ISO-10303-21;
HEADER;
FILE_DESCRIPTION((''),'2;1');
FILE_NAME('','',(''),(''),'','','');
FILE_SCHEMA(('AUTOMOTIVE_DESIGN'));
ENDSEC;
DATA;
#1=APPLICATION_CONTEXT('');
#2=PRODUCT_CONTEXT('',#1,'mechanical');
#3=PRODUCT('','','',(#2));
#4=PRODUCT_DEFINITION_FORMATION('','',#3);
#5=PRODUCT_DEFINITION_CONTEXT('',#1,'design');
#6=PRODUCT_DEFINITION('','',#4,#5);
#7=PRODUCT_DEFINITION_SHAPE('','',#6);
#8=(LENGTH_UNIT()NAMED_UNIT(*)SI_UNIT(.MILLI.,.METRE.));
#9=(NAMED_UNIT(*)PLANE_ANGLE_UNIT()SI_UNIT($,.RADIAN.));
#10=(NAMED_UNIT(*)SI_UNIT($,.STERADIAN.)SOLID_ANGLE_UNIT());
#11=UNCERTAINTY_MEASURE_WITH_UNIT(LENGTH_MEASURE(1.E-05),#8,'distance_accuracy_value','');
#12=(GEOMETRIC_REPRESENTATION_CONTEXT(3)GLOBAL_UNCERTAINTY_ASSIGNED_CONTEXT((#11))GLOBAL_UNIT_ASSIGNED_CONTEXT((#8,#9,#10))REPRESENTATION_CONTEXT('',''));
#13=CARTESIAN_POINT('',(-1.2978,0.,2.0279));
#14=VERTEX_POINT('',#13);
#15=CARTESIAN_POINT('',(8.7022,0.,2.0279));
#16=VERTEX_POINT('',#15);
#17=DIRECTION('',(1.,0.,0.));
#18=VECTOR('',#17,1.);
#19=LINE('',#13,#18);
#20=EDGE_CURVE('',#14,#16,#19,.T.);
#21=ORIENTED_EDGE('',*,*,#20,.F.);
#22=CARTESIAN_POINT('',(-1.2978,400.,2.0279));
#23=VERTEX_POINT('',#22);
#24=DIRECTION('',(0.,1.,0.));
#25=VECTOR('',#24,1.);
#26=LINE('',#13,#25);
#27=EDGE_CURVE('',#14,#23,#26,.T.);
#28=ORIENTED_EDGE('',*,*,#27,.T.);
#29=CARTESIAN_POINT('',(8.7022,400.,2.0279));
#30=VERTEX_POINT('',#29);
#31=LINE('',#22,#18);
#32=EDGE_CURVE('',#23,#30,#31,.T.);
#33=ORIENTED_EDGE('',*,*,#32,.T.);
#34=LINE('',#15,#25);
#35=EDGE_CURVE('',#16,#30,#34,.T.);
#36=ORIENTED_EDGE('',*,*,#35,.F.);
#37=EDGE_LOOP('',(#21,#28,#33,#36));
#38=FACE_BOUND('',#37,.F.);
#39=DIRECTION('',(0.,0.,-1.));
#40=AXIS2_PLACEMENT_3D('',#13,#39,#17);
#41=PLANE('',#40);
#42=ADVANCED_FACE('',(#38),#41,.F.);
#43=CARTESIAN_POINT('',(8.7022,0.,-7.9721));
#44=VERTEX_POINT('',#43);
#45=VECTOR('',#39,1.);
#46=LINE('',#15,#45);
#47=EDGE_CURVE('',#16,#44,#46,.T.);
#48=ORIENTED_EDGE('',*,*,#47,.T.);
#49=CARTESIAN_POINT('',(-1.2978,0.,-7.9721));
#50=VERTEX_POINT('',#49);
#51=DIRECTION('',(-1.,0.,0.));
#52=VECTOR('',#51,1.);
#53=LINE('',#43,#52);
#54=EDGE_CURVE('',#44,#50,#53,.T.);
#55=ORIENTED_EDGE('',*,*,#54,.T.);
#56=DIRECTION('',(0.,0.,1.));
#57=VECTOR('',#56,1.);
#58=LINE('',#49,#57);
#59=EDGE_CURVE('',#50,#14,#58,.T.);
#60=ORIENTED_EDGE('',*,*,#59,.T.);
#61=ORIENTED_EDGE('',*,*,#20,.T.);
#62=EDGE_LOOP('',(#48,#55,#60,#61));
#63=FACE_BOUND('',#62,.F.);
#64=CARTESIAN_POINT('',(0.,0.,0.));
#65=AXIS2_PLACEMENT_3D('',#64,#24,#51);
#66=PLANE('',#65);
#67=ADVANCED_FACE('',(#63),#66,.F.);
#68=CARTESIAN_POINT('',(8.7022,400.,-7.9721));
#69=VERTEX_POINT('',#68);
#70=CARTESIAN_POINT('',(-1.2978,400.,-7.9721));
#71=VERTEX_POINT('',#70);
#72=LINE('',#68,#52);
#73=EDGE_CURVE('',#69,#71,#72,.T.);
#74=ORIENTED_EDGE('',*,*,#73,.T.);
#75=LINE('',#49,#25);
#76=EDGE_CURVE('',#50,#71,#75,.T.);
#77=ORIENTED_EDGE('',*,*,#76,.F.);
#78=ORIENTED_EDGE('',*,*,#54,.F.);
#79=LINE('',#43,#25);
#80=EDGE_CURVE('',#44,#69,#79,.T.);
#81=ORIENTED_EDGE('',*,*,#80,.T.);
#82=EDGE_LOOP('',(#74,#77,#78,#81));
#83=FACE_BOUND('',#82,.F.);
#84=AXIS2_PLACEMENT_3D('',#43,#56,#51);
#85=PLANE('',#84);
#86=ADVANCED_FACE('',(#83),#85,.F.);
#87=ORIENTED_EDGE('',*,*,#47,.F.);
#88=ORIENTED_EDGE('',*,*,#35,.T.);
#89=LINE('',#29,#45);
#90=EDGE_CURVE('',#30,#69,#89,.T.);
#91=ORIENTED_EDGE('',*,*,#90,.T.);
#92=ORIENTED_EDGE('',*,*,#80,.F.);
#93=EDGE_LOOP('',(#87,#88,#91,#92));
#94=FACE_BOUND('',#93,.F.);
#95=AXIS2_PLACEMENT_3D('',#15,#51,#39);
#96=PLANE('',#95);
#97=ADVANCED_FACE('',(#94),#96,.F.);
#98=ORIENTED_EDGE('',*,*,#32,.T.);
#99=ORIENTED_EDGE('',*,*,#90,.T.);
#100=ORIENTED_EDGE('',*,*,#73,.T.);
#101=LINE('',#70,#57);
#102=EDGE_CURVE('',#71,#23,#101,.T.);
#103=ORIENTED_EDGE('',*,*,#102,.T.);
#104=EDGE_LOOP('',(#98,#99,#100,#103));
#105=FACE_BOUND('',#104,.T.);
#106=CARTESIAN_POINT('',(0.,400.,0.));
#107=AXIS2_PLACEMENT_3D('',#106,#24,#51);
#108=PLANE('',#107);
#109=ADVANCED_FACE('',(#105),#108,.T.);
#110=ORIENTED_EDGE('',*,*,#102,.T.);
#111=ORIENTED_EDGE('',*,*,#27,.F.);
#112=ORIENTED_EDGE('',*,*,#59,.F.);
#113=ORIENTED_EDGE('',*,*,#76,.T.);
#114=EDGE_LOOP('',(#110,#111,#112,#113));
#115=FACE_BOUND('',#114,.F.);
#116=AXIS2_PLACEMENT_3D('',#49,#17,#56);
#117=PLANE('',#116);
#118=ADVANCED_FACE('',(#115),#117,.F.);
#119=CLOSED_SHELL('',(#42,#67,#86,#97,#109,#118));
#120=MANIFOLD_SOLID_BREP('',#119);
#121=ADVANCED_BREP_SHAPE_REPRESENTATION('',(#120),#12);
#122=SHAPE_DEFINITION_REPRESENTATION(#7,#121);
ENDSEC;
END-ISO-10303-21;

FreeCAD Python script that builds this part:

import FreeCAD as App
import Part
import Sketcher

V = App.Vector
Q = App.Units.Quantity


def add_polygon(sketch, points):
    """Adds a closed chain of lines whose ends are joined by coincident constraints."""
    first, n = sketch.GeometryCount, len(points)
    for a, b in zip(points, points[1:] + points[:1]):
        sketch.addGeometry(Part.LineSegment(App.Vector(*a, 0), App.Vector(*b, 0)), False)
    for i in range(n):
        sketch.addConstraint(Sketcher.Constraint("Coincident", first + i, 2, first + (i + 1) % n, 1))

doc = App.newDocument("Part")
body = doc.addObject("PartDesign::Body", "Body")

# Sketch on XZ plane
sketch1 = body.newObject("Sketcher::SketchObject", "Sketch")
sketch1.AttachmentSupport = (doc.getObject("XZ_Plane"), [""])
sketch1.MapMode = "FlatFace"
add_polygon(sketch1, [(-1.2978, -7.9721), (-1.2978, 2.0279), (8.7022, 2.0279), (8.7022, -7.9721)])  # lines 0-3
sketch1.addConstraint(Sketcher.Constraint("Vertical", 0))
sketch1.addConstraint(Sketcher.Constraint("Horizontal", 1))
sketch1.addConstraint(Sketcher.Constraint("Vertical", 2))
sketch1.addConstraint(Sketcher.Constraint("Horizontal", 3))
sketch1.addConstraint(Sketcher.Constraint("Equal", 3, 0))
sketch1.addConstraint(Sketcher.Constraint("DistanceX", 1, 1, 1, 2, Q("10 mm")))
sketch1.addConstraint(Sketcher.Constraint("DistanceY", -1, 1, 0, 2, Q("2.028 mm")))
sketch1.addConstraint(Sketcher.Constraint("DistanceX", 0, 2, -1, 1, Q("1.2978 mm")))
pad1 = body.newObject("PartDesign::Pad", "Pad")
pad1.Profile = sketch1
pad1.Length = 400
pad1.Reversed = True

doc.recompute()
